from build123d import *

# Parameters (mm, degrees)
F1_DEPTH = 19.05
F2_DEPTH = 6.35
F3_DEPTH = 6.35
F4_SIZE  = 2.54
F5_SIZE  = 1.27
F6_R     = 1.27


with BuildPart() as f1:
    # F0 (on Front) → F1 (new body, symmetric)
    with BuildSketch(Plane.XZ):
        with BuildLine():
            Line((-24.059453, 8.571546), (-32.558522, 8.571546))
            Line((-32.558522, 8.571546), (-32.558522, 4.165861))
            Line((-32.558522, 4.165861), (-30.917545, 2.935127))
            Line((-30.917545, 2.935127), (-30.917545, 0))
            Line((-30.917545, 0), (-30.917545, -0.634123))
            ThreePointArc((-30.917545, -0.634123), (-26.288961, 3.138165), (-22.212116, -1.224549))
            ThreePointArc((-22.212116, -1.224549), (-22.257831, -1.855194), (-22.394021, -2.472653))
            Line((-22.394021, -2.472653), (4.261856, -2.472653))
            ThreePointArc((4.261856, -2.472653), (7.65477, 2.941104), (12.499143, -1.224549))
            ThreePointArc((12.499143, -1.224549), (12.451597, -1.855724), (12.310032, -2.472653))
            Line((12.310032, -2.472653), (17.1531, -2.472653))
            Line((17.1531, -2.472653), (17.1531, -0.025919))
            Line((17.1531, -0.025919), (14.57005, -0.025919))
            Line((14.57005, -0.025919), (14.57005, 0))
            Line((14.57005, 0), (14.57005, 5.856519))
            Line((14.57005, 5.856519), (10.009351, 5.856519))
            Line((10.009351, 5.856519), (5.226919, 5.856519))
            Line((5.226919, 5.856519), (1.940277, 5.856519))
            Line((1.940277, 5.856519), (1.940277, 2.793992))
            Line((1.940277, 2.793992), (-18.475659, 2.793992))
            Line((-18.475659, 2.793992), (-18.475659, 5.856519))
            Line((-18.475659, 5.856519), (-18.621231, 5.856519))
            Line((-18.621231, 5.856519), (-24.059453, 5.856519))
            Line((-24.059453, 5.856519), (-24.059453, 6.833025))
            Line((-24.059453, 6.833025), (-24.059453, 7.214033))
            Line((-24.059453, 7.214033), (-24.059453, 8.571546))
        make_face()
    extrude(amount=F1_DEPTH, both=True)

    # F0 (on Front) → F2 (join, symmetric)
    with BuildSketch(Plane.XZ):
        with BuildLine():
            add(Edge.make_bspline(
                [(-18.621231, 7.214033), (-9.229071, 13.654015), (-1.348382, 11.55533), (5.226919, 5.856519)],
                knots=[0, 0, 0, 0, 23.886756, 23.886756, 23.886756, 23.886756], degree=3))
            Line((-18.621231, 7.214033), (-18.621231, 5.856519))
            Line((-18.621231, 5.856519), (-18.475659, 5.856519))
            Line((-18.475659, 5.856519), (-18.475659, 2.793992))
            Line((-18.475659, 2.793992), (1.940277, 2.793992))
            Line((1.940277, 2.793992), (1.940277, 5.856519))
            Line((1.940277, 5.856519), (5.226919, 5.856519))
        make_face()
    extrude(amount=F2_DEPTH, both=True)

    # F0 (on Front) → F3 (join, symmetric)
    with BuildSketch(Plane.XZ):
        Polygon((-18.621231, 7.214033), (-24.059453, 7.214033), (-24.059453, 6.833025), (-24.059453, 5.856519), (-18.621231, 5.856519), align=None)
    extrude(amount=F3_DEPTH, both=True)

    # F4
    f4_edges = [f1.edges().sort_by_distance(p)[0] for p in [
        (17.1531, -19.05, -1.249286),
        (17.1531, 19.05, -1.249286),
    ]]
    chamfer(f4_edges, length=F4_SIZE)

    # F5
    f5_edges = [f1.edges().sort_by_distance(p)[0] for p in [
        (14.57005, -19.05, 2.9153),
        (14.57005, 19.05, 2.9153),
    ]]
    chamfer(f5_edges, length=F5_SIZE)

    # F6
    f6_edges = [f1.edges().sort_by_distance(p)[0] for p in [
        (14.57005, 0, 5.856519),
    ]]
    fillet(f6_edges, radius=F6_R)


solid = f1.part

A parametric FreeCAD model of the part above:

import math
import FreeCAD as App
import Part
import Sketcher
from FreeCAD import Vector
Q = App.Units.Quantity


def edges_at(feature, points):
    """Names of the edges that pass closest to the given points."""
    edges = feature.Shape.Edges
    near = lambda p: min(range(len(edges)), key=lambda i: edges[i].distToShape(Part.Vertex(*p))[0])
    return sorted({f"Edge{near(p) + 1}" for p in points})

doc = App.newDocument("Part")
body = doc.addObject("PartDesign::Body", "Body")

# Sketch on XZ plane
sketch1 = body.newObject("Sketcher::SketchObject", "Sketch")
sketch1.AttachmentSupport = (doc.getObject("XZ_Plane"), [""])
sketch1.MapMode = "FlatFace"
sketch1.addGeometry([
    Part.LineSegment(Vector(-24.1, 8.6, 0), Vector(-32.6, 8.6, 0)),  # 0
    Part.LineSegment(Vector(-32.6, 8.6, 0), Vector(-32.6, 4.2, 0)),  # 1
    Part.LineSegment(Vector(-32.6, 4.2, 0), Vector(-30.9, 2.9, 0)),  # 2
    Part.LineSegment(Vector(-30.9, 2.9, 0), Vector(-30.9, -0.6, 0)),  # 3
    Part.ArcOfCircle(Part.Circle(Vector(-26.6, -1.2, 0), Vector(0, 0, 1), 4.4), math.radians(0), math.radians(172)),  # 4
    Part.ArcOfCircle(Part.Circle(Vector(-26.6, -1.2, 0), Vector(0, 0, 1), 4.4), math.radians(-16.58), math.radians(0)),  # 5
    Part.LineSegment(Vector(-22.4, -2.5, 0), Vector(4.3, -2.5, 0)),  # 6
    Part.ArcOfCircle(Part.Circle(Vector(8.3, -1.2, 0), Vector(0, 0, 1), 4.2), math.radians(0), math.radians(197)),  # 7
    Part.ArcOfCircle(Part.Circle(Vector(8.3, -1.2, 0), Vector(0, 0, 1), 4.2), math.radians(-17.23), math.radians(0)),  # 8
    Part.LineSegment(Vector(12.3, -2.5, 0), Vector(17.2, -2.5, 0)),  # 9
    Part.LineSegment(Vector(17.2, -2.5, 0), Vector(17.2, 0, 0)),  # 10
    Part.LineSegment(Vector(17.2, 0, 0), Vector(14.6, 0, 0)),  # 11
    Part.LineSegment(Vector(14.6, 0, 0), Vector(14.6, 5.9, 0)),  # 12
    Part.LineSegment(Vector(14.6, 5.9, 0), Vector(1.9, 5.9, 0)),  # 13
    Part.LineSegment(Vector(1.9, 5.9, 0), Vector(1.9, 2.8, 0)),  # 14
    Part.LineSegment(Vector(1.9, 2.8, 0), Vector(-18.5, 2.8, 0)),  # 15
    Part.LineSegment(Vector(-18.5, 2.8, 0), Vector(-18.5, 5.9, 0)),  # 16
    Part.LineSegment(Vector(-18.5, 5.9, 0), Vector(-24.1, 5.9, 0)),  # 17
    Part.LineSegment(Vector(-24.1, 5.9, 0), Vector(-24.1, 8.6, 0)),  # 18
], False)
sketch1.addConstraint([
    Sketcher.Constraint("Coincident", 0, 2, 1, 1),
    Sketcher.Constraint("Coincident", 1, 2, 2, 1),
    Sketcher.Constraint("Coincident", 2, 2, 3, 1),
    Sketcher.Constraint("Coincident", 3, 2, 4, 2),
    Sketcher.Constraint("Tangent", 4, 1, 5, 2),
    Sketcher.Constraint("Coincident", 5, 1, 6, 1),
    Sketcher.Constraint("Coincident", 6, 2, 7, 2),
    Sketcher.Constraint("Tangent", 7, 1, 8, 2),
    Sketcher.Constraint("Coincident", 8, 1, 9, 1),
    Sketcher.Constraint("Coincident", 9, 2, 10, 1),
    Sketcher.Constraint("Coincident", 10, 2, 11, 1),
    Sketcher.Constraint("Coincident", 11, 2, 12, 1),
    Sketcher.Constraint("Coincident", 12, 2, 13, 1),
    Sketcher.Constraint("Coincident", 13, 2, 14, 1),
    Sketcher.Constraint("Coincident", 14, 2, 15, 1),
    Sketcher.Constraint("Coincident", 15, 2, 16, 1),
    Sketcher.Constraint("Coincident", 16, 2, 17, 1),
    Sketcher.Constraint("Coincident", 17, 2, 18, 1),
    Sketcher.Constraint("Coincident", 18, 2, 0, 1),
    Sketcher.Constraint("Horizontal", 0),
    Sketcher.Constraint("Vertical", 1),
    Sketcher.Constraint("Vertical", 3),
    Sketcher.Constraint("Horizontal", 6),
    Sketcher.Constraint("Horizontal", 9),
    Sketcher.Constraint("Vertical", 10),
    Sketcher.Constraint("Horizontal", 11),
    Sketcher.Constraint("Vertical", 12),
    Sketcher.Constraint("Horizontal", 13),
    Sketcher.Constraint("Vertical", 14),
    Sketcher.Constraint("Horizontal", 15),
    Sketcher.Constraint("Vertical", 16),
    Sketcher.Constraint("Horizontal", 17),
    Sketcher.Constraint("Vertical", 18),
    Sketcher.Constraint("Equal", 7, 8),
    Sketcher.Constraint("Horizontal", 4, 3, 7, 3),
    Sketcher.Constraint("Horizontal", 8, 3, 4, 1),
    Sketcher.Constraint("Horizontal", 4, 1, 7, 1),
    Sketcher.Constraint("Horizontal", 6, 2, 8, 1),
    Sketcher.Constraint("Horizontal", 13, 2, 16, 2),
    Sketcher.Constraint("Radius", 7, Q("4.213199 mm")),
    Sketcher.Constraint("Radius", 5, Q("4.372739 mm")),
    Sketcher.Constraint("Radius", 4, Q("4.372737 mm")),
    Sketcher.Constraint("DistanceX", 0, 2, 0, 1, Q("8.499069 mm")),
    Sketcher.Constraint("DistanceX", 11, 2, 11, 1, Q("2.58305 mm")),
    Sketcher.Constraint("DistanceY", 3, 2, 3, 1, Q("3.56925 mm")),
    Sketcher.Constraint("DistanceX", -1, 1, 9, 2, Q("17.1531 mm")),
    Sketcher.Constraint("DistanceX", 5, 3, 7, 3, Q("34.870799 mm")),
    Sketcher.Constraint("DistanceY", 5, 1, 5, 3, Q("1.248101 mm")),
    Sketcher.Constraint("DistanceX", 4, 3, 17, 2, Q("2.5254 mm")),
    Sketcher.Constraint("DistanceX", 9, 1, 9, 2, Q("4.843068 mm")),
    Sketcher.Constraint("DistanceX", 13, 2, 13, 1, Q("12.629773 mm")),
    Sketcher.Constraint("DistanceX", 15, 2, 15, 1, Q("20.415936 mm")),
    Sketcher.Constraint("DistanceY", 1, 2, 1, 1, Q("4.405685 mm")),
    Sketcher.Constraint("DistanceY", 10, 1, 10, 2, Q("2.446734 mm")),
    Sketcher.Constraint("DistanceY", 12, 1, 12, 2, Q("5.882438 mm")),
    Sketcher.Constraint("DistanceY", 14, 2, 14, 1, Q("3.062527 mm")),
    Sketcher.Constraint("DistanceY", 18, 1, 18, 2, Q("2.715027 mm")),
    Sketcher.Constraint("DistanceY", 4, 3, -1, 1, Q("1.224549 mm")),
    Sketcher.Constraint("DistanceY", 2, 2, 0, 2, Q("5.636419 mm")),
])
pad1 = body.newObject("PartDesign::Pad", "Pad")
pad1.Profile = sketch1
pad1.Length = Q("1.5 in")
pad1.Midplane = True

# Sketch on XZ plane
sketch2 = body.newObject("Sketcher::SketchObject", "Sketch001")
sketch2.AttachmentSupport = (doc.getObject("XZ_Plane"), [""])
sketch2.MapMode = "FlatFace"
sketch2.addGeometry([
    Part.BSplineCurve([Vector(-18.621231, 7.214033, 0), Vector(-9.229071, 13.654015, 0), Vector(-1.348382, 11.55533, 0), Vector(5.226919, 5.856519, 0)], [4, 4], [0, 23.886756], False, 3, [1, 1, 1, 1], False),  # 0
    Part.LineSegment(Vector(-18.621231, 7.214033, 0), Vector(-18.621231, 5.856519, 0)),  # 1
    Part.LineSegment(Vector(-18.621231, 5.856519, 0), Vector(-18.475659, 5.856519, 0)),  # 2
    Part.LineSegment(Vector(-18.475659, 5.856519, 0), Vector(-18.475659, 2.793992, 0)),  # 3
    Part.LineSegment(Vector(-18.475659, 2.793992, 0), Vector(1.940277, 2.793992, 0)),  # 4
    Part.LineSegment(Vector(1.940277, 2.793992, 0), Vector(1.940277, 5.856519, 0)),  # 5
    Part.LineSegment(Vector(1.940277, 5.856519, 0), Vector(5.226919, 5.856519, 0)),  # 6
], False)
sketch2.addConstraint([
    Sketcher.Constraint("Block", 0),
    Sketcher.Constraint("Coincident", 0, 1, 1, 1),
    Sketcher.Constraint("Coincident", 1, 2, 2, 1),
    Sketcher.Constraint("Coincident", 2, 2, 3, 1),
    Sketcher.Constraint("Coincident", 3, 2, 4, 1),
    Sketcher.Constraint("Coincident", 4, 2, 5, 1),
    Sketcher.Constraint("Coincident", 5, 2, 6, 1),
    Sketcher.Constraint("Coincident", 6, 2, 0, 2),
    Sketcher.Constraint("Vertical", 1),
    Sketcher.Constraint("Horizontal", 2),
    Sketcher.Constraint("Vertical", 3),
    Sketcher.Constraint("Horizontal", 4),
    Sketcher.Constraint("Vertical", 5),
    Sketcher.Constraint("Horizontal", 6),
    Sketcher.Constraint("Horizontal", 2, 2, 5, 2),
    Sketcher.Constraint("DistanceX", 6, 1, 6, 2, Q("3.286642 mm")),
    Sketcher.Constraint("DistanceX", 2, 1, 2, 2, Q("0.145572 mm")),
    Sketcher.Constraint("DistanceY", 3, 2, 3, 1, Q("3.062527 mm")),
])
pad2 = body.newObject("PartDesign::Pad", "Pad001")
pad2.Profile = sketch2
pad2.Length = Q("0.5 in")
pad2.Midplane = True

# Sketch on XZ plane
sketch3 = body.newObject("Sketcher::SketchObject", "Sketch002")
sketch3.AttachmentSupport = (doc.getObject("XZ_Plane"), [""])
sketch3.MapMode = "FlatFace"
sketch3.addGeometry([
    Part.LineSegment(Vector(-18.6, 7.2, 0), Vector(-24.1, 7.2, 0)),
    Part.LineSegment(Vector(-24.1, 7.2, 0), Vector(-24.1, 5.9, 0)),
    Part.LineSegment(Vector(-24.1, 5.9, 0), Vector(-18.6, 5.9, 0)),
    Part.LineSegment(Vector(-18.6, 5.9, 0), Vector(-18.6, 7.2, 0)),
], False)
sketch3.addConstraint([
    Sketcher.Constraint("Coincident", 0, 2, 1, 1),
    Sketcher.Constraint("Coincident", 1, 2, 2, 1),
    Sketcher.Constraint("Coincident", 2, 2, 3, 1),
    Sketcher.Constraint("Coincident", 3, 2, 0, 1),
    Sketcher.Constraint("Horizontal", 0),
    Sketcher.Constraint("Vertical", 1),
    Sketcher.Constraint("Horizontal", 2),
    Sketcher.Constraint("Vertical", 3),
    Sketcher.Constraint("DistanceX", 0, 2, 0, 1, Q("5.438222 mm")),
    Sketcher.Constraint("DistanceY", 1, 2, 1, 1, Q("1.357514 mm")),
    Sketcher.Constraint("DistanceY", -1, 1, 1, 2, Q("5.856519 mm")),
    Sketcher.Constraint("DistanceX", 2, 2, -1, 1, Q("18.621231 mm")),
])
pad3 = body.newObject("PartDesign::Pad", "Pad002")
pad3.Profile = sketch3
pad3.Length = Q("0.5 in")
pad3.Midplane = True
doc.recompute()

chamfer = body.newObject("PartDesign::Chamfer", "Chamfer")
chamfer.Base = (pad3, edges_at(pad3, [(17.153, -19.05, -1.249), (17.153, 19.05, -1.249)]))
chamfer.Size = Q("0.1 in")
doc.recompute()

chamfer2 = body.newObject("PartDesign::Chamfer", "Chamfer001")
chamfer2.Base = (chamfer, edges_at(chamfer, [(14.57, -19.05, 2.915), (14.57, 19.05, 2.915)]))
chamfer2.Size = Q("0.05 in")
doc.recompute()

fillet = body.newObject("PartDesign::Fillet", "Fillet")
fillet.Base = (chamfer2, edges_at(chamfer2, [(14.57, 0, 5.857)]))
fillet.Radius = Q("0.05 in")

doc.recompute()
